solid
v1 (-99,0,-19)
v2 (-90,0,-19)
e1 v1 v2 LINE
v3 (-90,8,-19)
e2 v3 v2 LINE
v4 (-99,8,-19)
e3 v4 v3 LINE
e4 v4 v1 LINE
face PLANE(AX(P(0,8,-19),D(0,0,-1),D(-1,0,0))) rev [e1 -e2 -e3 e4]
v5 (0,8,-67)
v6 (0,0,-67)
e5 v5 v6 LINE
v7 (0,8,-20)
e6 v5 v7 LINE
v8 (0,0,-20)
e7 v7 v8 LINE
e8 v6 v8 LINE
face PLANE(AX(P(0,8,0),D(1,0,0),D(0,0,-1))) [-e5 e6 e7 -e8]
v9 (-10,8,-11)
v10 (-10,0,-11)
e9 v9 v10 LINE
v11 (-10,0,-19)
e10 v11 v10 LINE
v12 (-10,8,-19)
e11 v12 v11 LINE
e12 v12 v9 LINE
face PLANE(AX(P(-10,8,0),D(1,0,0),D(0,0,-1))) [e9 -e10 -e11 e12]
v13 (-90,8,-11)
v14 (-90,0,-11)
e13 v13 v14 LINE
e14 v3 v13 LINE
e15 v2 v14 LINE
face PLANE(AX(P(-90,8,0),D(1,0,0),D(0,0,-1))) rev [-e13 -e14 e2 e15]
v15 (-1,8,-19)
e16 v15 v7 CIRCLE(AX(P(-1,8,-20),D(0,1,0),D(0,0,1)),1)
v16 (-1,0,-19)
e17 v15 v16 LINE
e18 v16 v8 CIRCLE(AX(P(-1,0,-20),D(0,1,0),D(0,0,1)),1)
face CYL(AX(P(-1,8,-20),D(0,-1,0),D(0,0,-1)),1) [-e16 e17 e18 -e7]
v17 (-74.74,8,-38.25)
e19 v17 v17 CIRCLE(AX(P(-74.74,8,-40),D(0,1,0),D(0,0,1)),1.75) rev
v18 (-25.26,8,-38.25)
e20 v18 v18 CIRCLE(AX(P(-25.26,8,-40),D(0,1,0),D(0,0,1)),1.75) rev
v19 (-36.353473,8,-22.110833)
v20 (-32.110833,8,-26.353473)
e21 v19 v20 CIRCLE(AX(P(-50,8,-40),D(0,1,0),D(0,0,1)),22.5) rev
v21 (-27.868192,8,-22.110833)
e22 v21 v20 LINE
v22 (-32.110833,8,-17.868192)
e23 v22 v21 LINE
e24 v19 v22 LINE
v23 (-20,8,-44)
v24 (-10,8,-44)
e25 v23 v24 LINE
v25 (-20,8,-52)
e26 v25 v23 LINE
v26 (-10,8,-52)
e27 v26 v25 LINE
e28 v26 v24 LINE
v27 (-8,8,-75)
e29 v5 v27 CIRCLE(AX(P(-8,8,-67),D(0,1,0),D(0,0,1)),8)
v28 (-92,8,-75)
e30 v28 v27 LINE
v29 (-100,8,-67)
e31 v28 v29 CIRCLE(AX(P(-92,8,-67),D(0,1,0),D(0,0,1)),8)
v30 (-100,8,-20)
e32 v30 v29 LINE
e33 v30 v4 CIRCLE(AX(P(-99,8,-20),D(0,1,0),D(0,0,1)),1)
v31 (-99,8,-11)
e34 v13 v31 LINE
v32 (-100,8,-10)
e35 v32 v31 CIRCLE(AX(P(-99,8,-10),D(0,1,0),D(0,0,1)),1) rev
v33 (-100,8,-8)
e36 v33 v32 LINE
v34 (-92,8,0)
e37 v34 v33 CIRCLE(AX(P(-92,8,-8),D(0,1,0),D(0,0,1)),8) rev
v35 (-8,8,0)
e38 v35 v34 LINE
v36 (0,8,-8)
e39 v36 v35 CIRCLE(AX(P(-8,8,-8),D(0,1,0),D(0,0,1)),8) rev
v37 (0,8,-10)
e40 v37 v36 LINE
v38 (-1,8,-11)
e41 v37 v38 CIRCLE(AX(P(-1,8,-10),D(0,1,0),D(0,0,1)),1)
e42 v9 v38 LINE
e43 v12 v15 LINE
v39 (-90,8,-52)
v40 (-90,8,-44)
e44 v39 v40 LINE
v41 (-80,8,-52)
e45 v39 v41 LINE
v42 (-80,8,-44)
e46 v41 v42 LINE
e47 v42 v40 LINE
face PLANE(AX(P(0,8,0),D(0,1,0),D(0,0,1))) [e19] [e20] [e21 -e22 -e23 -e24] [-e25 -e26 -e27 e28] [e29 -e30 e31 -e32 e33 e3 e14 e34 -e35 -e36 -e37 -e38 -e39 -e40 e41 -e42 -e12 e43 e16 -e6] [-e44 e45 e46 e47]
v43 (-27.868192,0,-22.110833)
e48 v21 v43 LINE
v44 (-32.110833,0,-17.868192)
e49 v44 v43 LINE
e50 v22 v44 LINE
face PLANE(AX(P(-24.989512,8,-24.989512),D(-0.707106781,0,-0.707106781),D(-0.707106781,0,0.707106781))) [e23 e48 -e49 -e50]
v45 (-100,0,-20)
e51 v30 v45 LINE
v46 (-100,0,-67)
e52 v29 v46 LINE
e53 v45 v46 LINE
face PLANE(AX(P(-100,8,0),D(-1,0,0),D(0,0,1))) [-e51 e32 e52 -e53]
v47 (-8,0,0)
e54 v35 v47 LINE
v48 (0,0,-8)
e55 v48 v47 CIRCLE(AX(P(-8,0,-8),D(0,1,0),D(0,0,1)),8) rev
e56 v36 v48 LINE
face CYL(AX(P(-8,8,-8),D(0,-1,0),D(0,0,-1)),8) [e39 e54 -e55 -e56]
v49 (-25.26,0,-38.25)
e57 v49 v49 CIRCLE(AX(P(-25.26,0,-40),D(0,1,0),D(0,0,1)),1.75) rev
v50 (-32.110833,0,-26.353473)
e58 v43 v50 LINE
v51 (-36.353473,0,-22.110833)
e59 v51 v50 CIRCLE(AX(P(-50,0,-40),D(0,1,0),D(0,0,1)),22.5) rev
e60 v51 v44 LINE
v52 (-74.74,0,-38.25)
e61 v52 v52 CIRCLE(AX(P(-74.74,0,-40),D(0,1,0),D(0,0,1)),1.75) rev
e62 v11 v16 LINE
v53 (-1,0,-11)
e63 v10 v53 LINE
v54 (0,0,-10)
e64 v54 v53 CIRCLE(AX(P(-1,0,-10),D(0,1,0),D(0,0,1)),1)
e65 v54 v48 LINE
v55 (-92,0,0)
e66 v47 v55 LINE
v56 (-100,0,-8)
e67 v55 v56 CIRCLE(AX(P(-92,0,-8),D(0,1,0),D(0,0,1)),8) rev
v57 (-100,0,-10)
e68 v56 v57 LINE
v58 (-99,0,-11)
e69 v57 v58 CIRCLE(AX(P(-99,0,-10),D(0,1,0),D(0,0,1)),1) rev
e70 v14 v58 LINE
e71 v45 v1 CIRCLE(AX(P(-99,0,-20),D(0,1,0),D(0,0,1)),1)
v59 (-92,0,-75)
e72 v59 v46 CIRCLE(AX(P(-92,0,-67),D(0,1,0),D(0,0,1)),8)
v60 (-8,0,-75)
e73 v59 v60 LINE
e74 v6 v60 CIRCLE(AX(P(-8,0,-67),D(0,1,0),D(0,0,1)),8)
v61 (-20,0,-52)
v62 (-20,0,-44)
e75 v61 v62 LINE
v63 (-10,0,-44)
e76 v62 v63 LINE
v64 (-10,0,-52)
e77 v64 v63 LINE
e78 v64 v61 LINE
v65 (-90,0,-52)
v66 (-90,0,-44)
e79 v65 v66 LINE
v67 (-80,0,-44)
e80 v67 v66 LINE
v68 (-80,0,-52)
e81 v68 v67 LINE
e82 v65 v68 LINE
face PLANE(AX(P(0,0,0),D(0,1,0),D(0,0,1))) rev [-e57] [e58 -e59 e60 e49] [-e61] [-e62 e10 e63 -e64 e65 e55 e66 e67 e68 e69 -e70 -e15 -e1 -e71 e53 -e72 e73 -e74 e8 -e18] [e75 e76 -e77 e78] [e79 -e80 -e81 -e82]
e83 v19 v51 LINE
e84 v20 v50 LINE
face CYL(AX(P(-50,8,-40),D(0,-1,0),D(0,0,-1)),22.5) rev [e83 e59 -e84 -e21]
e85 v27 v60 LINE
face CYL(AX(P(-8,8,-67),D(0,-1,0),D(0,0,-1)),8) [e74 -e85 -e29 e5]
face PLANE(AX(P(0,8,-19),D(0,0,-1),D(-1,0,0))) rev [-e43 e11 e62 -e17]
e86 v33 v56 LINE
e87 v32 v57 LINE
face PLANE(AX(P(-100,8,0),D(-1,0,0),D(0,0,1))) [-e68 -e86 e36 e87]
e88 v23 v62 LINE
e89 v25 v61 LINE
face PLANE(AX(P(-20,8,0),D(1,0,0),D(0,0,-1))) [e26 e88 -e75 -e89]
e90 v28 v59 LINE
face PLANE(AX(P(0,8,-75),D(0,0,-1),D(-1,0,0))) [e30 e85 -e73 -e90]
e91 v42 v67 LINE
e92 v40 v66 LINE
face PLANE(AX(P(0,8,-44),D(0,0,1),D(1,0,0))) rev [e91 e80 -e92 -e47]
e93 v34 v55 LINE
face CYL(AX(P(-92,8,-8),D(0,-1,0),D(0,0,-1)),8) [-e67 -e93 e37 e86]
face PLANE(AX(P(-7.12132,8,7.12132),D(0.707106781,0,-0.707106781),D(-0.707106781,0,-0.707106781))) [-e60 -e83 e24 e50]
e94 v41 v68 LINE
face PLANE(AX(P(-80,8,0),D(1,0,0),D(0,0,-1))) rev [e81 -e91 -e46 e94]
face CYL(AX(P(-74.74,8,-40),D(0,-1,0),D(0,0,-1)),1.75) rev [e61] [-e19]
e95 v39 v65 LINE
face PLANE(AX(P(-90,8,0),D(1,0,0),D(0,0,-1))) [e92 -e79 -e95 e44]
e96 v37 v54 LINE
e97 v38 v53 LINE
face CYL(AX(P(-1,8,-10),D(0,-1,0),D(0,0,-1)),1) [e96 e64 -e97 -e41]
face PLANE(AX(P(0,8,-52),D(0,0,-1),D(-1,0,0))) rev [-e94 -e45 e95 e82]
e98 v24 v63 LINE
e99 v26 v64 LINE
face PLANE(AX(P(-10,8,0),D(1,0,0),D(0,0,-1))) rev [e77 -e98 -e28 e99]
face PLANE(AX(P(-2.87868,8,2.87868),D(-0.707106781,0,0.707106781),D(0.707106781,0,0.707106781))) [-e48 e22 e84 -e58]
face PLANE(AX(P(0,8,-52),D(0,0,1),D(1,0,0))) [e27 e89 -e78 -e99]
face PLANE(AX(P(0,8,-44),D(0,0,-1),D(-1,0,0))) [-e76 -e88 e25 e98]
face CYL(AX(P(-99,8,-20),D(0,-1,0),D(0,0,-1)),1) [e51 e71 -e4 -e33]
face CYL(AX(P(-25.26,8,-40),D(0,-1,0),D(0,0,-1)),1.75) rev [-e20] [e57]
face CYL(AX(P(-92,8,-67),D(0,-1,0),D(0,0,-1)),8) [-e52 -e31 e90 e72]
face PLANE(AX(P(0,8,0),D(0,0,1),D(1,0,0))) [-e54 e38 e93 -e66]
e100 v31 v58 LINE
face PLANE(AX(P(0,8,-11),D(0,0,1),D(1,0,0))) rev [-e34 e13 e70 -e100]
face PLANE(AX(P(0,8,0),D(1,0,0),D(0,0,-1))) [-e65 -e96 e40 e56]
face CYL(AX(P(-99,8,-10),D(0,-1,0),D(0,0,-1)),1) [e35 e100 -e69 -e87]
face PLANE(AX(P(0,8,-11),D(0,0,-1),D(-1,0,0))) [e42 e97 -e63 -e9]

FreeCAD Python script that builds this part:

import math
import FreeCAD as App
import Part
import Sketcher

V = App.Vector
Q = App.Units.Quantity


def add_polygon(sketch, points):
    """Adds a closed chain of lines whose ends are joined by coincident constraints."""
    first, n = sketch.GeometryCount, len(points)
    for a, b in zip(points, points[1:] + points[:1]):
        sketch.addGeometry(Part.LineSegment(App.Vector(*a, 0), App.Vector(*b, 0)), False)
    for i in range(n):
        sketch.addConstraint(Sketcher.Constraint("Coincident", first + i, 2, first + (i + 1) % n, 1))

doc = App.newDocument("Part")
params = doc.addObject("Spreadsheet::Sheet", "Params")
for row, (alias, value) in enumerate([
    ("sketch1_radius", "8 mm"),
    ("sketch1_radius2", "1 mm"),
    ("sketch1_diameter", "3.5 mm"),
    ("sketch1_radius3", "22.5 mm"),
    ("sketch1_width", "84 mm"),
    ("pad1_length", "8 mm"),
], start=1):
    params.set(f"A{row}", alias)
    params.set(f"B{row}", "=" + value)
    params.setAlias(f"B{row}", alias)

body = doc.addObject("PartDesign::Body", "Body")

# Sketch on XZ plane
sketch1 = doc.addObject("Sketcher::SketchObject", "Sketch")
body.addObject(sketch1)
sketch1.AttachmentSupport = (doc.XZ_Plane, [""])
sketch1.MapMode = "FlatFace"
sketch1.addGeometry(Part.LineSegment(V(-92, 0, 0), V(-8, 0, 0)), False)  # 0
sketch1.addGeometry(Part.ArcOfCircle(Part.Circle(V(-8, -8, 0), V(0, 0, 1), 8), math.radians(0), math.radians(90)), False)  # 1
sketch1.addGeometry(Part.LineSegment(V(0, -8, 0), V(0, -10, 0)), False)  # 2
sketch1.addGeometry(Part.ArcOfCircle(Part.Circle(V(-1, -10, 0), V(0, 0, 1), 1), math.radians(-90), math.radians(0)), False)  # 3
sketch1.addGeometry(Part.LineSegment(V(-1, -11, 0), V(-10, -11, 0)), False)  # 4
sketch1.addGeometry(Part.LineSegment(V(-10, -11, 0), V(-10, -19, 0)), False)  # 5
sketch1.addGeometry(Part.LineSegment(V(-10, -19, 0), V(-1, -19, 0)), False)  # 6
sketch1.addGeometry(Part.ArcOfCircle(Part.Circle(V(-1, -20, 0), V(0, 0, 1), 1), math.radians(0), math.radians(90)), False)  # 7
sketch1.addGeometry(Part.LineSegment(V(0, -20, 0), V(0, -67, 0)), False)  # 8
sketch1.addGeometry(Part.ArcOfCircle(Part.Circle(V(-8, -67, 0), V(0, 0, 1), 8), math.radians(-90), math.radians(0)), False)  # 9
sketch1.addGeometry(Part.LineSegment(V(-8, -75, 0), V(-92, -75, 0)), False)  # 10
sketch1.addGeometry(Part.ArcOfCircle(Part.Circle(V(-92, -67, 0), V(0, 0, 1), 8), math.radians(-180), math.radians(-90)), False)  # 11
sketch1.addGeometry(Part.LineSegment(V(-100, -67, 0), V(-100, -20, 0)), False)  # 12
sketch1.addGeometry(Part.ArcOfCircle(Part.Circle(V(-99, -20, 0), V(0, 0, 1), 1), math.radians(90), math.radians(180)), False)  # 13
sketch1.addGeometry(Part.LineSegment(V(-99, -19, 0), V(-90, -19, 0)), False)  # 14
sketch1.addGeometry(Part.LineSegment(V(-90, -19, 0), V(-90, -11, 0)), False)  # 15
sketch1.addGeometry(Part.LineSegment(V(-90, -11, 0), V(-99, -11, 0)), False)  # 16
sketch1.addGeometry(Part.ArcOfCircle(Part.Circle(V(-99, -10, 0), V(0, 0, 1), 1), math.radians(-180), math.radians(-90)), False)  # 17
sketch1.addGeometry(Part.LineSegment(V(-100, -10, 0), V(-100, -8, 0)), False)  # 18
sketch1.addGeometry(Part.ArcOfCircle(Part.Circle(V(-92, -8, 0), V(0, 0, 1), 8), math.radians(90), math.radians(180)), False)  # 19
sketch1.addGeometry(Part.Circle(V(-74.74, -40, 0), V(0, 0, 1), 1.75), False)  # 20
sketch1.addGeometry(Part.Circle(V(-25.26, -40, 0), V(0, 0, 1), 1.75), False)  # 21
add_polygon(sketch1, [(-80, -44), (-90, -44), (-90, -52), (-80, -52)])  # lines 22-25
sketch1.addGeometry(Part.LineSegment(V(-27.868192, -22.110833, 0), V(-32.110833, -17.868192, 0)), False)  # 26
sketch1.addGeometry(Part.LineSegment(V(-32.110833, -17.868192, 0), V(-36.353473, -22.110833, 0)), False)  # 27
sketch1.addGeometry(Part.ArcOfCircle(Part.Circle(V(-50, -40, 0), V(0, 0, 1), 22.5), math.radians(52.662256), math.radians(397.337744)), False)  # 28
sketch1.addGeometry(Part.LineSegment(V(-32.110833, -26.353473, 0), V(-27.868192, -22.110833, 0)), False)  # 29
add_polygon(sketch1, [(-10, -44), (-20, -44), (-20, -52), (-10, -52)])  # lines 30-33
sketch1.addConstraint([
    Sketcher.Constraint("Tangent", 0, 2, 1, 2),
    Sketcher.Constraint("Tangent", 1, 1, 2, 1),
    Sketcher.Constraint("Tangent", 2, 2, 3, 2),
    Sketcher.Constraint("Tangent", 3, 1, 4, 1),
    Sketcher.Constraint("Coincident", 4, 2, 5, 1),
    Sketcher.Constraint("Coincident", 5, 2, 6, 1),
    Sketcher.Constraint("Tangent", 6, 2, 7, 2),
    Sketcher.Constraint("Tangent", 7, 1, 8, 1),
    Sketcher.Constraint("Tangent", 8, 2, 9, 2),
    Sketcher.Constraint("Tangent", 9, 1, 10, 1),
    Sketcher.Constraint("Tangent", 10, 2, 11, 2),
    Sketcher.Constraint("Tangent", 11, 1, 12, 1),
    Sketcher.Constraint("Tangent", 12, 2, 13, 2),
    Sketcher.Constraint("Tangent", 13, 1, 14, 1),
    Sketcher.Constraint("Coincident", 14, 2, 15, 1),
    Sketcher.Constraint("Coincident", 15, 2, 16, 1),
    Sketcher.Constraint("Tangent", 16, 2, 17, 2),
    Sketcher.Constraint("Tangent", 17, 1, 18, 1),
    Sketcher.Constraint("Tangent", 18, 2, 19, 2),
    Sketcher.Constraint("Tangent", 19, 1, 0, 1),
    Sketcher.Constraint("Coincident", 26, 2, 27, 1),
    Sketcher.Constraint("Coincident", 27, 2, 28, 1),
    Sketcher.Constraint("Coincident", 28, 2, 29, 1),
    Sketcher.Constraint("Coincident", 29, 2, 26, 1),
    Sketcher.Constraint("Horizontal", 0),
    Sketcher.Constraint("Vertical", 2),
    Sketcher.Constraint("Horizontal", 4),
    Sketcher.Constraint("Vertical", 5),
    Sketcher.Constraint("Horizontal", 6),
    Sketcher.Constraint("Vertical", 8),
    Sketcher.Constraint("Horizontal", 10),
    Sketcher.Constraint("Vertical", 12),
    Sketcher.Constraint("Horizontal", 14),
    Sketcher.Constraint("Vertical", 15),
    Sketcher.Constraint("Horizontal", 16),
    Sketcher.Constraint("Vertical", 18),
    Sketcher.Constraint("Horizontal", 22),
    Sketcher.Constraint("Vertical", 23),
    Sketcher.Constraint("Horizontal", 24),
    Sketcher.Constraint("Vertical", 25),
    Sketcher.Constraint("Horizontal", 30),
    Sketcher.Constraint("Vertical", 31),
    Sketcher.Constraint("Horizontal", 32),
    Sketcher.Constraint("Vertical", 33),
    Sketcher.Constraint("Equal", 3, 7),
    Sketcher.Constraint("Equal", 1, 9),
    Sketcher.Constraint("Equal", 9, 11),
    Sketcher.Constraint("Equal", 7, 13),
    Sketcher.Constraint("Equal", 13, 17),
    Sketcher.Constraint("Equal", 11, 19),
    Sketcher.Constraint("Equal", 20, 21),
    Sketcher.Constraint("PointOnObject", 0, 2, -1),
    Sketcher.Constraint("PointOnObject", 1, 1, -2),
    Sketcher.Constraint("PointOnObject", 7, 1, -2),
    Sketcher.Constraint("Perpendicular", 26, 27),
    Sketcher.Constraint("Parallel", 27, 29),
    Sketcher.Constraint("Horizontal", 7, 3, 13, 3),
    Sketcher.Constraint("Horizontal", 3, 3, 17, 3),
    Sketcher.Constraint("Horizontal", 20, 3, 21, 3),
    Sketcher.Constraint("Horizontal", 21, 3, 28, 3),
    Sketcher.Constraint("Horizontal", 27, 2, 29, 2),
    Sketcher.Constraint("Horizontal", 25, 2, 30, 2),
    Sketcher.Constraint("Horizontal", 24, 2, 31, 2),
    Sketcher.Constraint("Vertical", 13, 3, 17, 3),
    Sketcher.Constraint("Vertical", 15, 2, 22, 2),
    Sketcher.Constraint("Vertical", 26, 2, 28, 2),
    Sketcher.Constraint("Vertical", 5, 2, 32, 2),
    Sketcher.Constraint("Equal", 6, 14),
    Sketcher.Constraint("Equal", 24, 30),
    Sketcher.Constraint("Equal", 15, 23),
    Sketcher.Constraint("Equal", 26, 27),
    Sketcher.Constraint("Radius", 1, Q("8 mm")),
    Sketcher.Constraint("Radius", 3, Q("1 mm")),
    Sketcher.Constraint("Diameter", 20, Q("3.5 mm")),
    Sketcher.Constraint("Radius", 28, Q("22.5 mm")),
    Sketcher.Constraint("DistanceX", 0, 1, 0, 2, Q("84 mm")),
    Sketcher.Constraint("DistanceX", 4, 2, 4, 1, Q("9 mm")),
    Sketcher.Constraint("DistanceX", 22, 2, 22, 1, Q("10 mm")),
    Sketcher.Constraint("DistanceY", 2, 2, 2, 1, Q("2 mm")),
    Sketcher.Constraint("DistanceY", 5, 2, 5, 1, Q("8 mm")),
    Sketcher.Constraint("DistanceY", 8, 2, 8, 1, Q("47 mm")),
    Sketcher.Constraint("Distance", 26, Q("6 mm")),
    Sketcher.Constraint("DistanceY", 20, 3, -1, 1, Q("40 mm")),
    Sketcher.Constraint("DistanceX", 28, 3, -1, 1, Q("50 mm")),
    Sketcher.Constraint("DistanceY", 22, 2, -1, 1, Q("44 mm")),
    Sketcher.Constraint("DistanceX", 20, 3, -1, 1, Q("74.74 mm")),
    Sketcher.Constraint("DistanceX", 21, 3, -1, 1, Q("25.26 mm")),
])
sketch1.setExpression("Constraints[79]", "Params.sketch1_radius")
sketch1.setExpression("Constraints[80]", "Params.sketch1_radius2")
sketch1.setExpression("Constraints[81]", "Params.sketch1_diameter")
sketch1.setExpression("Constraints[82]", "Params.sketch1_radius3")
sketch1.setExpression("Constraints[83]", "Params.sketch1_width")
pad1 = doc.addObject("PartDesign::Pad", "Pad")
body.addObject(pad1)
pad1.Profile = sketch1
pad1.setExpression("Length", "Params.pad1_length")
pad1.Reversed = True

doc.recompute()
